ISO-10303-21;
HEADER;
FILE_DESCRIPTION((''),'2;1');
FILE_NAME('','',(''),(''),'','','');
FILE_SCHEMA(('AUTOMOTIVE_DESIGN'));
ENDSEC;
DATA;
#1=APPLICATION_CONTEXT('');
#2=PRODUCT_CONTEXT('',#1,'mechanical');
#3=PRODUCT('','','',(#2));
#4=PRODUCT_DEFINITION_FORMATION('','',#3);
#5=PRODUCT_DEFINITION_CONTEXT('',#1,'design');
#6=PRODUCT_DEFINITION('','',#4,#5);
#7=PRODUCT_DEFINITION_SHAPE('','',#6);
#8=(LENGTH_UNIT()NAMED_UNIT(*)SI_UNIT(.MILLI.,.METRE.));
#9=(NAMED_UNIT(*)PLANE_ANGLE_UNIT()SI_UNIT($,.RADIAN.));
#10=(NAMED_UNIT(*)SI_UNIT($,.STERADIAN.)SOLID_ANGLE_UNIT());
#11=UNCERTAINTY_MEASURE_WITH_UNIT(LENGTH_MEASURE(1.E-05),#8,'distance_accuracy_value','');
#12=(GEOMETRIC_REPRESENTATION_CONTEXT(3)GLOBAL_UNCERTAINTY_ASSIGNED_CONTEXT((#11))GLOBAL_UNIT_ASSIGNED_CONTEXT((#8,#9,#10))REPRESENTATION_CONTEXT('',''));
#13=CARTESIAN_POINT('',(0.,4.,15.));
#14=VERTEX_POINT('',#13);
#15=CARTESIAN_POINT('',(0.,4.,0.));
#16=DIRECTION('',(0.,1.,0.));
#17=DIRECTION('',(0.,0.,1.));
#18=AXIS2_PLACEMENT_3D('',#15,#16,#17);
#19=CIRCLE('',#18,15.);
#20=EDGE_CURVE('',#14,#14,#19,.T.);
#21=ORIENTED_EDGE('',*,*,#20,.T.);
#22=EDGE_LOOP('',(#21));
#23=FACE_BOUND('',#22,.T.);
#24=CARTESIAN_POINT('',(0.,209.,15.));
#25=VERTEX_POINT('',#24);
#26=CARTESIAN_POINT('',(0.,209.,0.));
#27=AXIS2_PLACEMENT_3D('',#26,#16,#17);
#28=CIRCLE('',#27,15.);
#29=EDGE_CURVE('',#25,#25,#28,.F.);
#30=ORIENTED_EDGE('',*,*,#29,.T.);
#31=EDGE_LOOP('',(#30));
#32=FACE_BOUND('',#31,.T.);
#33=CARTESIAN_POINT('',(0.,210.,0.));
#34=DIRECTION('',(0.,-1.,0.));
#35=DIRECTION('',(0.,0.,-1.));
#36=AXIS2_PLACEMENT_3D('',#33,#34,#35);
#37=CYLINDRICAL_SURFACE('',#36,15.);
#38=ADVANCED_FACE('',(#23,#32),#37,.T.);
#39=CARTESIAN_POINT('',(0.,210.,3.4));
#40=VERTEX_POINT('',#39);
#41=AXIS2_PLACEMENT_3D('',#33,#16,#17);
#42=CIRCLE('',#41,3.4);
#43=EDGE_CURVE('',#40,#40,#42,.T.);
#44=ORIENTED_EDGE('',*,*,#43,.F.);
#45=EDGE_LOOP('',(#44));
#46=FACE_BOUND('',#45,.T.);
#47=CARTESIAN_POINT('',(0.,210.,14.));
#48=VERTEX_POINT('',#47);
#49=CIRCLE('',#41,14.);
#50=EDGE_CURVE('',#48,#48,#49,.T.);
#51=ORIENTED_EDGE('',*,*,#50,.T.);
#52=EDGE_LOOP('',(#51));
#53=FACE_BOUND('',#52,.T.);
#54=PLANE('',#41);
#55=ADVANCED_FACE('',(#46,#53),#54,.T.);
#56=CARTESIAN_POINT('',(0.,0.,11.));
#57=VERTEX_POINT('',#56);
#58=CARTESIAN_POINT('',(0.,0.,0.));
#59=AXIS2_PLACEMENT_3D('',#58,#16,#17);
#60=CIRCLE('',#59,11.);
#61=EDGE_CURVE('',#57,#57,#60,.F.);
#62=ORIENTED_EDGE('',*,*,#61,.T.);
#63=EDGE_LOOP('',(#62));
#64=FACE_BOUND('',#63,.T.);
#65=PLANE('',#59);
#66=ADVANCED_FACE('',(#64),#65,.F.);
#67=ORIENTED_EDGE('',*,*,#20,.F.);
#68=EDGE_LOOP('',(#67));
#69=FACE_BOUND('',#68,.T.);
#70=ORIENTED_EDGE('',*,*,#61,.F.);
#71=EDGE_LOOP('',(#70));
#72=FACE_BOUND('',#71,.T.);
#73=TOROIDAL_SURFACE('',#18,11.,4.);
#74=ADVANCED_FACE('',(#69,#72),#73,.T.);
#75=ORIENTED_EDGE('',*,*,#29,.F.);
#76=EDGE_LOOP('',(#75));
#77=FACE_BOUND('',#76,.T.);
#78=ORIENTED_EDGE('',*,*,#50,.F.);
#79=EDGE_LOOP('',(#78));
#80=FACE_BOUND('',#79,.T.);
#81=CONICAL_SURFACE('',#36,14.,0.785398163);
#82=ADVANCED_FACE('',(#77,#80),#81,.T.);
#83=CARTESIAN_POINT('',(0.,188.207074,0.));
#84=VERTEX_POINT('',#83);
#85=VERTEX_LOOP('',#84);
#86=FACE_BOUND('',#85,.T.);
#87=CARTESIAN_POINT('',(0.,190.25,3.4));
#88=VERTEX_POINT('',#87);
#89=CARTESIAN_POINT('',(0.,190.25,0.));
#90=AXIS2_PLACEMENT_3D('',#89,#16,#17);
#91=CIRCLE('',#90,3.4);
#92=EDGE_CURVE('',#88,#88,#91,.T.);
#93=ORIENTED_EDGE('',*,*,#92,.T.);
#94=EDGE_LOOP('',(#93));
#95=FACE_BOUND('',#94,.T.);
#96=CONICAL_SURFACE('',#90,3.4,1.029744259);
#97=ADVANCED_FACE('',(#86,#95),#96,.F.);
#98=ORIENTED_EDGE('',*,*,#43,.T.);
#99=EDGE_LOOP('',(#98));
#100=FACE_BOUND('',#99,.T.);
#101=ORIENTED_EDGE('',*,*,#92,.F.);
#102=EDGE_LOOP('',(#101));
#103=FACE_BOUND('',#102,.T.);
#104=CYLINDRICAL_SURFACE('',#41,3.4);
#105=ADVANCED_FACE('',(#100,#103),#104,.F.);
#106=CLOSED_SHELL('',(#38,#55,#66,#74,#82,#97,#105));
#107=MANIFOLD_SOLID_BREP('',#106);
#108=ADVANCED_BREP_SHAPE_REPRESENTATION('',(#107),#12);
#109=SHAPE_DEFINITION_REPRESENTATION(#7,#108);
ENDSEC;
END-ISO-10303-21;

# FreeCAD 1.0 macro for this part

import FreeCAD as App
import Part
import Sketcher

V = App.Vector


def edges_at(feature, points):
    """Names of the edges that pass closest to the given points."""
    edges = feature.Shape.Edges
    near = lambda p: min(range(len(edges)), key=lambda i: edges[i].distToShape(Part.Vertex(*p))[0])
    return sorted({f"Edge{near(p) + 1}" for p in points})

doc = App.newDocument("Part")
body = doc.addObject("PartDesign::Body", "Body")

sketch1 = body.newObject("Sketcher::SketchObject", "Sketch")
sketch1.AttachmentSupport = (doc.getObject("XZ_Plane"), [""])
sketch1.MapMode = "FlatFace"
sketch1.addGeometry(Part.Circle(V(0, 0, 0), V(0, 0, 1), 15), False)
sketch1.addConstraint(Sketcher.Constraint("Coincident", 0, 3, -1, 1))
sketch1.addConstraint(Sketcher.Constraint("Diameter", 0, 30.0))
pad1 = body.newObject("PartDesign::Pad", "Pad")
pad1.Profile = sketch1
pad1.Length = 210
pad1.Reversed = True
doc.recompute()

fillet = body.newObject("PartDesign::Fillet", "Fillet")
fillet.Base = (pad1, edges_at(pad1, [(0, 0, -15)]))
fillet.Radius = 4
doc.recompute()

chamfer = body.newObject("PartDesign::Chamfer", "Chamfer")
chamfer.Base = (fillet, edges_at(fillet, [(0, 210, -15)]))
chamfer.Size = 1

sketch2 = body.newObject("Sketcher::SketchObject", "Sketch001")
sketch2.AttachmentSupport = (doc.getObject("XZ_Plane"), [""])
sketch2.MapMode = "FlatFace"
sketch2.AttachmentOffset = App.Placement(V(0, 0, -210), App.Rotation())
sketch2.addGeometry(Part.Circle(V(0, 0, 0), V(0, 0, 1), 3.4), False)
sketch2.addConstraint(Sketcher.Constraint("Coincident", 0, 3, -1, 1))
sketch2.addConstraint(Sketcher.Constraint("Diameter", 0, 6.8))
doc.recompute()
hole = body.newObject("PartDesign::Hole", "Hole")
hole.Profile = sketch2
hole.ThreadType = "None"
hole.Diameter = 6.8
hole.DepthType = "Dimension"
hole.Depth = 19.75
hole.DrillPoint = "Angled"
hole.DrillPointAngle = 118
hole.Reversed = True

doc.recompute()
